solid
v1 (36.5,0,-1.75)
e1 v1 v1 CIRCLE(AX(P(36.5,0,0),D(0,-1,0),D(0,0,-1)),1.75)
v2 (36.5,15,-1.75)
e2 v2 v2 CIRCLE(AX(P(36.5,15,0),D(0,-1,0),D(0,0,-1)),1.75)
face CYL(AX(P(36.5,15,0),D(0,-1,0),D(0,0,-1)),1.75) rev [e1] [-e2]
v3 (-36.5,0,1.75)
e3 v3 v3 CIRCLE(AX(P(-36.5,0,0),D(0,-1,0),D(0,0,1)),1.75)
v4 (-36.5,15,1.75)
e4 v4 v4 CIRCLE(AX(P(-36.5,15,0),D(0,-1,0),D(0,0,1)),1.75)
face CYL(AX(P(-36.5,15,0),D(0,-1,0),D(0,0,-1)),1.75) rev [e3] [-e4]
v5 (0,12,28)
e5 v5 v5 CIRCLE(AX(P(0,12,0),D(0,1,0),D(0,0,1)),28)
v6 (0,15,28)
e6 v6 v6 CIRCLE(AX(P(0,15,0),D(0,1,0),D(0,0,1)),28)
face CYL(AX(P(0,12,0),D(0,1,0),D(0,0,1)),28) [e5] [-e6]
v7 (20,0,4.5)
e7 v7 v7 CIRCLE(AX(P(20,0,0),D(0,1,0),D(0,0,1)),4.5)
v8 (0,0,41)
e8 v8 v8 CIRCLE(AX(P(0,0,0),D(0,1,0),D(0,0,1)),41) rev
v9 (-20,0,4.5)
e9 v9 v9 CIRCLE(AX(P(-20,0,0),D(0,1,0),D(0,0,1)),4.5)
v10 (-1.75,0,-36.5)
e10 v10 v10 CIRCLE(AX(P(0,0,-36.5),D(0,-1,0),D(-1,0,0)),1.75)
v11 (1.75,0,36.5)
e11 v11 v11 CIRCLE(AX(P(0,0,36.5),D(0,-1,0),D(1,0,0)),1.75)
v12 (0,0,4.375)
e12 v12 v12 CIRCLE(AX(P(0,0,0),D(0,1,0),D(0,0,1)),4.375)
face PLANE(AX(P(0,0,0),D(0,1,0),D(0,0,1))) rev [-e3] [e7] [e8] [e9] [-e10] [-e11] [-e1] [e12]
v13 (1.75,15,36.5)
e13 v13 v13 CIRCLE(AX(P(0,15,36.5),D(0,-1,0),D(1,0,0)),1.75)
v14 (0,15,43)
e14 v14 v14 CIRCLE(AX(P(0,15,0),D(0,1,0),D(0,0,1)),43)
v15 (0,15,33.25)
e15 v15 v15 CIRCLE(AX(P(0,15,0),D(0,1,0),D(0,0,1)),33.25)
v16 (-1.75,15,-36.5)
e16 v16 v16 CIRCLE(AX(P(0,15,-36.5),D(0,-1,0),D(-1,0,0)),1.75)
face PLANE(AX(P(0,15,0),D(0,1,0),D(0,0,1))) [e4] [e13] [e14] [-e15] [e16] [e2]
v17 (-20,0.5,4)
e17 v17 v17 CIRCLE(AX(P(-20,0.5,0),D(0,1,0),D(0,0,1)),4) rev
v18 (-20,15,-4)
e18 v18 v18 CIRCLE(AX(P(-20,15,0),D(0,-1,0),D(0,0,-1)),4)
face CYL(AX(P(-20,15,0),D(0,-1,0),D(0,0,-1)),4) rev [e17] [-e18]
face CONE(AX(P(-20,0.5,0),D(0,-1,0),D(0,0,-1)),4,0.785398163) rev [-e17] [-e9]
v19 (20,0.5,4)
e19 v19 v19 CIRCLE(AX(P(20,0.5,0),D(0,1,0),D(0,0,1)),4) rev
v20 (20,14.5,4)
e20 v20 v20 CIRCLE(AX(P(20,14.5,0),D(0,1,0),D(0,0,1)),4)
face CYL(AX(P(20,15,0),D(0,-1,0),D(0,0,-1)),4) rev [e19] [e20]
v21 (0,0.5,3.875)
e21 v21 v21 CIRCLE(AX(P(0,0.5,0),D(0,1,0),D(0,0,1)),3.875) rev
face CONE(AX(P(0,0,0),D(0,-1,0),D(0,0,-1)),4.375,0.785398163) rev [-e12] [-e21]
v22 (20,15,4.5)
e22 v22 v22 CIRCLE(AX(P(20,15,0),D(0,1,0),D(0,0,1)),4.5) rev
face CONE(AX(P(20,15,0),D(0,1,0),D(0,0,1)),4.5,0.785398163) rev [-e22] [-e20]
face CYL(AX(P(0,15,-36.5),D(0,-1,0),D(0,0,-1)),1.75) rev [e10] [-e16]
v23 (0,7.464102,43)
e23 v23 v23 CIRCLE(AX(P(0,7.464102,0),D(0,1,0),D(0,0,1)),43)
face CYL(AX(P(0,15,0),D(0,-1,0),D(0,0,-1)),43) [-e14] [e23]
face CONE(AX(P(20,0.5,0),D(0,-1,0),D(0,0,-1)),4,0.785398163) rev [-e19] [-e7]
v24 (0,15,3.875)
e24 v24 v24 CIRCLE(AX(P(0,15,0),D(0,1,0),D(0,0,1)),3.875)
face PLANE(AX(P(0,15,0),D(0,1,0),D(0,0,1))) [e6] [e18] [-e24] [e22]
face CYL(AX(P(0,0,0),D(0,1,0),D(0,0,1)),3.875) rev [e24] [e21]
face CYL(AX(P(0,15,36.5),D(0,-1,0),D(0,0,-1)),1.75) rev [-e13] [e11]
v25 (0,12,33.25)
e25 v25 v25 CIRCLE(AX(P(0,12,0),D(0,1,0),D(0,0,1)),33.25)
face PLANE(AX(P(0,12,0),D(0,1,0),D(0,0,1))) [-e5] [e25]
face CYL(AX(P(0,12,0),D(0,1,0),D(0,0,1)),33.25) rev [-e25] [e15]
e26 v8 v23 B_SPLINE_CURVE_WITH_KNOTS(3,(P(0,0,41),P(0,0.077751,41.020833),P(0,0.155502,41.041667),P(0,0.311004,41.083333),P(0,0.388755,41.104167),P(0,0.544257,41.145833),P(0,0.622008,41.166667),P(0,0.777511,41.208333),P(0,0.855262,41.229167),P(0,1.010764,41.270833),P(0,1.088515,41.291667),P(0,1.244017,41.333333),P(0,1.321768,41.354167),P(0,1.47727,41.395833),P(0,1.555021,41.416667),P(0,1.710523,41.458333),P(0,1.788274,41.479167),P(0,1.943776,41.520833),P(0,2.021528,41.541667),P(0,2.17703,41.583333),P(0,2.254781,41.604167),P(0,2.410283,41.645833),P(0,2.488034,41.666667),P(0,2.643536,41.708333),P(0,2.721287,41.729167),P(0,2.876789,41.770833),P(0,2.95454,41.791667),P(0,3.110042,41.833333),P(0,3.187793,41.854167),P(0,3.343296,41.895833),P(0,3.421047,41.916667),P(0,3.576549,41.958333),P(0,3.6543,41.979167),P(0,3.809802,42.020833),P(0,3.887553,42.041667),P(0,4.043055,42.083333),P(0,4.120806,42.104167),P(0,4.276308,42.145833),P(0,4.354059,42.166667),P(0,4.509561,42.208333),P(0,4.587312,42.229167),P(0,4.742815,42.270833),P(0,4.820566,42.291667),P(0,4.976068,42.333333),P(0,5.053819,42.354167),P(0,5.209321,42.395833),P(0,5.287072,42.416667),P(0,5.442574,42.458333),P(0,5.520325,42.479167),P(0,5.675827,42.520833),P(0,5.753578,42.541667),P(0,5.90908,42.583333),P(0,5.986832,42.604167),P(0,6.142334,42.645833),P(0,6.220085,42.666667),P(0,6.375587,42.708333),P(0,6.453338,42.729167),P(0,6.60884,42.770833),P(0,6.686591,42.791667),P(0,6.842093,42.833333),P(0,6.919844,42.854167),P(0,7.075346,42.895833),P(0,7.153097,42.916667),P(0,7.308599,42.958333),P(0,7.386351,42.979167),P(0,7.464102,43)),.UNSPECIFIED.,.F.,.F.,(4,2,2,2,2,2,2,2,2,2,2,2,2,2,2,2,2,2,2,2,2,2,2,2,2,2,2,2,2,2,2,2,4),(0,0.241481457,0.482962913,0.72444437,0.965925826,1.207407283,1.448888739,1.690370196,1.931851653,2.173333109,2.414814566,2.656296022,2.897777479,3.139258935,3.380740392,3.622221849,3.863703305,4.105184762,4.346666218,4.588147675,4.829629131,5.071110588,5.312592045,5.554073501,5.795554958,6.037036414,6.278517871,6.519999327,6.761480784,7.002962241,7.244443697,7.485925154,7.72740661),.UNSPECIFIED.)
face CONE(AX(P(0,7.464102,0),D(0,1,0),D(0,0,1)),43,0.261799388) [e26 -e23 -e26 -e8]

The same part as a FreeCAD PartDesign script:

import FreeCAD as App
import Part
import Sketcher
from FreeCAD import Vector


def edges_at(feature, points):
    """Names of the edges that pass closest to the given points."""
    edges = feature.Shape.Edges
    near = lambda p: min(range(len(edges)), key=lambda i: edges[i].distToShape(Part.Vertex(*p))[0])
    return sorted({f"Edge{near(p) + 1}" for p in points})

doc = App.newDocument("Part")
body = doc.addObject("PartDesign::Body", "Body")

sketch1 = doc.addObject("Sketcher::SketchObject", "Sketch")
body.addObject(sketch1)
sketch1.AttachmentSupport = (doc.XZ_Plane, [""])
sketch1.MapMode = "FlatFace"
sketch1.addGeometry(Part.Circle(Vector(0, 0, 0), Vector(0, 0, 1), 43), False)
sketch1.addConstraint([
    Sketcher.Constraint("Coincident", 0, 3, -1, 1),
    Sketcher.Constraint("Diameter", 0, 86.0),
])
pad1 = doc.addObject("PartDesign::Pad", "Pad")
body.addObject(pad1)
pad1.Profile = sketch1
pad1.Length = 15
pad1.Reversed = True

sketch2 = doc.addObject("Sketcher::SketchObject", "Sketch001")
body.addObject(sketch2)
sketch2.AttachmentSupport = (doc.XZ_Plane, [""])
sketch2.MapMode = "FlatFace"
sketch2.addGeometry([
    Part.Circle(Vector(20, 0, 0), Vector(0, 0, 1), 4),
    Part.Circle(Vector(-20, 0, 0), Vector(0, 0, 1), 4),
], False)
sketch2.addConstraint([
    Sketcher.Constraint("Equal", 0, 1),
    Sketcher.Constraint("Symmetric", 0, 3, 1, 3, -1, 1),
    Sketcher.Constraint("PointOnObject", 0, 3, -1),
    Sketcher.Constraint("Diameter", 0, 8.0),
    Sketcher.Constraint("DistanceX", -1, 1, 0, 3, 20.0),
])
pocket1 = doc.addObject("PartDesign::Pocket", "Pocket")
body.addObject(pocket1)
pocket1.Profile = sketch2
pocket1.Type = "ThroughAll"

sketch3 = doc.addObject("Sketcher::SketchObject", "Sketch002")
body.addObject(sketch3)
sketch3.AttachmentSupport = (doc.XZ_Plane, [""])
sketch3.MapMode = "FlatFace"
sketch3.AttachmentOffset = App.Placement(Vector(0, 0, -15), App.Rotation())
sketch3.addGeometry(Part.Circle(Vector(0, 0, 0), Vector(0, 0, 1), 3.875), False)
sketch3.addConstraint([
    Sketcher.Constraint("Coincident", 0, 3, -1, 1),
    Sketcher.Constraint("Diameter", 0, 7.75),
])
pocket2 = doc.addObject("PartDesign::Pocket", "Pocket001")
body.addObject(pocket2)
pocket2.Profile = sketch3
pocket2.Type = "ThroughAll"
pocket2.Reversed = True

sketch4 = doc.addObject("Sketcher::SketchObject", "Sketch003")
body.addObject(sketch4)
sketch4.AttachmentSupport = (doc.XZ_Plane, [""])
sketch4.MapMode = "FlatFace"
sketch4.AttachmentOffset = App.Placement(Vector(0, 0, -15), App.Rotation())
sketch4.addGeometry([
    Part.Circle(Vector(0, 0, 0), Vector(0, 0, 1), 33.25),
    Part.Circle(Vector(0, 0, 0), Vector(0, 0, 1), 28),
], False)
sketch4.addConstraint([
    Sketcher.Constraint("Coincident", 0, 3, -1, 1),
    Sketcher.Constraint("Coincident", 1, 3, -1, 1),
    Sketcher.Constraint("Diameter", 1, 56.0),
    Sketcher.Constraint("Diameter", 0, 66.5),
])
pocket3 = doc.addObject("PartDesign::Pocket", "Pocket002")
body.addObject(pocket3)
pocket3.Profile = sketch4
pocket3.Length = 3
pocket3.Reversed = True

sketch5 = doc.addObject("Sketcher::SketchObject", "Sketch004")
body.addObject(sketch5)
sketch5.AttachmentSupport = (doc.XZ_Plane, [""])
sketch5.MapMode = "FlatFace"
sketch5.addGeometry(Part.Circle(Vector(36.5, 0, 0), Vector(0, 0, 1), 1.75), False)
sketch5.addConstraint([
    Sketcher.Constraint("PointOnObject", 0, 3, -1),
    Sketcher.Constraint("Diameter", 0, 3.5),
    Sketcher.Constraint("DistanceX", -1, 1, 0, 3, 36.5),
])
pocket4 = doc.addObject("PartDesign::Pocket", "Pocket003")
body.addObject(pocket4)
pocket4.Profile = sketch5
pocket4.Type = "ThroughAll"
doc.recompute()

polarpattern = doc.addObject("PartDesign::PolarPattern", "PolarPattern")
body.addObject(polarpattern)
polarpattern.Originals = [pocket4]
polarpattern.Axis = (doc.Y_Axis, [""])
polarpattern.Angle = 360
polarpattern.Occurrences = 4
body.Tip = polarpattern
doc.recompute()

chamfer = doc.addObject("PartDesign::Chamfer", "Chamfer")
body.addObject(chamfer)
chamfer.Base = (polarpattern, edges_at(polarpattern, [(0, 0, -43)]))
chamfer.ChamferType = "Two distances"
chamfer.Size = 2
chamfer.Size2 = 7.464102
chamfer.FlipDirection = True
doc.recompute()

chamfer2 = doc.addObject("PartDesign::Chamfer", "Chamfer001")
body.addObject(chamfer2)
chamfer2.Base = (chamfer, edges_at(chamfer, [
    (-20, 0, 4),
    (0, 0, -3.875),
    (20, 15, 4),
    (20, 0, 4),
]))
chamfer2.Size = 0.5

doc.recompute()
